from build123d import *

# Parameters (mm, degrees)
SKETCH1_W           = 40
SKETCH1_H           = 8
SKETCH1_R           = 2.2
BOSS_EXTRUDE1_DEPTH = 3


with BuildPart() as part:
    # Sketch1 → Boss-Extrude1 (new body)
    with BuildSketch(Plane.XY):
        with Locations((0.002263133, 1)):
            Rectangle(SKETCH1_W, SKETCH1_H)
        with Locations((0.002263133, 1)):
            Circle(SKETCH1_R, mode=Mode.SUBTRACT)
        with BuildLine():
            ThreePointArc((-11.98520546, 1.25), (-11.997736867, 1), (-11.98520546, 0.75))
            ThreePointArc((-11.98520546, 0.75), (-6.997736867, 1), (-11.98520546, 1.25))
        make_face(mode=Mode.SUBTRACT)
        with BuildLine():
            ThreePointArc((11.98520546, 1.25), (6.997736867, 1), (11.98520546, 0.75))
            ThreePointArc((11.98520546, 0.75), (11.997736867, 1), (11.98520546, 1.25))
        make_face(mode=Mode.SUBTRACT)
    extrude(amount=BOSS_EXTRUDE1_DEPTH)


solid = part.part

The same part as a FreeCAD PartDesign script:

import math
import FreeCAD as App
import Part
import Sketcher
Q = App.Units.Quantity


def add_polygon(sketch, points):
    """Adds a closed chain of lines whose ends are joined by coincident constraints."""
    first, n = sketch.GeometryCount, len(points)
    for a, b in zip(points, points[1:] + points[:1]):
        sketch.addGeometry(Part.LineSegment(App.Vector(*a, 0), App.Vector(*b, 0)), False)
    for i in range(n):
        sketch.addConstraint(Sketcher.Constraint("Coincident", first + i, 2, first + (i + 1) % n, 1))

doc = App.newDocument("Part")
body = doc.addObject("PartDesign::Body", "Body")

# Sketch on XY plane
sketch1 = body.newObject("Sketcher::SketchObject", "Sketch")
sketch1.AttachmentSupport = (doc.getObject("XY_Plane"), [""])
sketch1.MapMode = "FlatFace"
add_polygon(sketch1, [(-20, 5), (-20, -3), (20, -3), (20, 5)])  # lines 0-3
sketch1.addGeometry(Part.ArcOfCircle(Part.Circle(App.Vector(-9.5, 1, 0), App.Vector(0, 0, 1), 2.5), math.radians(174.26), math.radians(185.74)), False)  # 4
sketch1.addGeometry(Part.ArcOfCircle(Part.Circle(App.Vector(-9.5, 1, 0), App.Vector(0, 0, 1), 2.5), math.radians(-174), math.radians(174)), False)  # 5
sketch1.addGeometry(Part.Circle(App.Vector(0, 1, 0), App.Vector(0, 0, 1), 2.2), False)  # 6
sketch1.addGeometry(Part.ArcOfCircle(Part.Circle(App.Vector(9.5, 1, 0), App.Vector(0, 0, 1), 2.5), math.radians(6), math.radians(354)), False)  # 7
sketch1.addGeometry(Part.ArcOfCircle(Part.Circle(App.Vector(9.5, 1, 0), App.Vector(0, 0, 1), 2.5), math.radians(-5.74), math.radians(5.74)), False)  # 8
sketch1.addConstraint([
    Sketcher.Constraint("Tangent", 4, 1, 5, 2),
    Sketcher.Constraint("Coincident", 5, 1, 4, 2),
    Sketcher.Constraint("Tangent", 7, 1, 8, 2),
    Sketcher.Constraint("Coincident", 8, 1, 7, 2),
    Sketcher.Constraint("Vertical", 0),
    Sketcher.Constraint("Horizontal", 1),
    Sketcher.Constraint("Vertical", 2),
    Sketcher.Constraint("Horizontal", 3),
    Sketcher.Constraint("Equal", 5, 7),
    Sketcher.Constraint("Symmetric", 4, 3, 7, 3, -2),
    Sketcher.Constraint("Horizontal", 5, 3, 6, 3),
    Sketcher.Constraint("Horizontal", 4, 1, 7, 1),
    Sketcher.Constraint("Horizontal", 5, 1, 8, 1),
    Sketcher.Constraint("Vertical", 4, 1, 5, 1),
    Sketcher.Constraint("Diameter", 6, Q("4.4 mm")),
    Sketcher.Constraint("Radius", 4, Q("2.5 mm")),
    Sketcher.Constraint("DistanceX", 1, 1, 1, 2, Q("40 mm")),
    Sketcher.Constraint("DistanceY", 0, 2, 0, 1, Q("8 mm")),
    Sketcher.Constraint("DistanceY", -1, 1, 4, 3, Q("1 mm")),
    Sketcher.Constraint("DistanceY", 0, 2, -1, 1, Q("3 mm")),
    Sketcher.Constraint("DistanceX", 0, 2, 6, 3, Q("20 mm")),
    Sketcher.Constraint("DistanceX", 4, 3, 6, 3, Q("9.5 mm")),
    Sketcher.Constraint("DistanceY", 5, 1, 4, 1, Q("0.5 mm")),
    Sketcher.Constraint("DistanceX", 4, 3, -1, 1, Q("9.497737 mm")),
])
pad1 = body.newObject("PartDesign::Pad", "Pad")
pad1.Profile = sketch1
pad1.Length = 3

doc.recompute()
